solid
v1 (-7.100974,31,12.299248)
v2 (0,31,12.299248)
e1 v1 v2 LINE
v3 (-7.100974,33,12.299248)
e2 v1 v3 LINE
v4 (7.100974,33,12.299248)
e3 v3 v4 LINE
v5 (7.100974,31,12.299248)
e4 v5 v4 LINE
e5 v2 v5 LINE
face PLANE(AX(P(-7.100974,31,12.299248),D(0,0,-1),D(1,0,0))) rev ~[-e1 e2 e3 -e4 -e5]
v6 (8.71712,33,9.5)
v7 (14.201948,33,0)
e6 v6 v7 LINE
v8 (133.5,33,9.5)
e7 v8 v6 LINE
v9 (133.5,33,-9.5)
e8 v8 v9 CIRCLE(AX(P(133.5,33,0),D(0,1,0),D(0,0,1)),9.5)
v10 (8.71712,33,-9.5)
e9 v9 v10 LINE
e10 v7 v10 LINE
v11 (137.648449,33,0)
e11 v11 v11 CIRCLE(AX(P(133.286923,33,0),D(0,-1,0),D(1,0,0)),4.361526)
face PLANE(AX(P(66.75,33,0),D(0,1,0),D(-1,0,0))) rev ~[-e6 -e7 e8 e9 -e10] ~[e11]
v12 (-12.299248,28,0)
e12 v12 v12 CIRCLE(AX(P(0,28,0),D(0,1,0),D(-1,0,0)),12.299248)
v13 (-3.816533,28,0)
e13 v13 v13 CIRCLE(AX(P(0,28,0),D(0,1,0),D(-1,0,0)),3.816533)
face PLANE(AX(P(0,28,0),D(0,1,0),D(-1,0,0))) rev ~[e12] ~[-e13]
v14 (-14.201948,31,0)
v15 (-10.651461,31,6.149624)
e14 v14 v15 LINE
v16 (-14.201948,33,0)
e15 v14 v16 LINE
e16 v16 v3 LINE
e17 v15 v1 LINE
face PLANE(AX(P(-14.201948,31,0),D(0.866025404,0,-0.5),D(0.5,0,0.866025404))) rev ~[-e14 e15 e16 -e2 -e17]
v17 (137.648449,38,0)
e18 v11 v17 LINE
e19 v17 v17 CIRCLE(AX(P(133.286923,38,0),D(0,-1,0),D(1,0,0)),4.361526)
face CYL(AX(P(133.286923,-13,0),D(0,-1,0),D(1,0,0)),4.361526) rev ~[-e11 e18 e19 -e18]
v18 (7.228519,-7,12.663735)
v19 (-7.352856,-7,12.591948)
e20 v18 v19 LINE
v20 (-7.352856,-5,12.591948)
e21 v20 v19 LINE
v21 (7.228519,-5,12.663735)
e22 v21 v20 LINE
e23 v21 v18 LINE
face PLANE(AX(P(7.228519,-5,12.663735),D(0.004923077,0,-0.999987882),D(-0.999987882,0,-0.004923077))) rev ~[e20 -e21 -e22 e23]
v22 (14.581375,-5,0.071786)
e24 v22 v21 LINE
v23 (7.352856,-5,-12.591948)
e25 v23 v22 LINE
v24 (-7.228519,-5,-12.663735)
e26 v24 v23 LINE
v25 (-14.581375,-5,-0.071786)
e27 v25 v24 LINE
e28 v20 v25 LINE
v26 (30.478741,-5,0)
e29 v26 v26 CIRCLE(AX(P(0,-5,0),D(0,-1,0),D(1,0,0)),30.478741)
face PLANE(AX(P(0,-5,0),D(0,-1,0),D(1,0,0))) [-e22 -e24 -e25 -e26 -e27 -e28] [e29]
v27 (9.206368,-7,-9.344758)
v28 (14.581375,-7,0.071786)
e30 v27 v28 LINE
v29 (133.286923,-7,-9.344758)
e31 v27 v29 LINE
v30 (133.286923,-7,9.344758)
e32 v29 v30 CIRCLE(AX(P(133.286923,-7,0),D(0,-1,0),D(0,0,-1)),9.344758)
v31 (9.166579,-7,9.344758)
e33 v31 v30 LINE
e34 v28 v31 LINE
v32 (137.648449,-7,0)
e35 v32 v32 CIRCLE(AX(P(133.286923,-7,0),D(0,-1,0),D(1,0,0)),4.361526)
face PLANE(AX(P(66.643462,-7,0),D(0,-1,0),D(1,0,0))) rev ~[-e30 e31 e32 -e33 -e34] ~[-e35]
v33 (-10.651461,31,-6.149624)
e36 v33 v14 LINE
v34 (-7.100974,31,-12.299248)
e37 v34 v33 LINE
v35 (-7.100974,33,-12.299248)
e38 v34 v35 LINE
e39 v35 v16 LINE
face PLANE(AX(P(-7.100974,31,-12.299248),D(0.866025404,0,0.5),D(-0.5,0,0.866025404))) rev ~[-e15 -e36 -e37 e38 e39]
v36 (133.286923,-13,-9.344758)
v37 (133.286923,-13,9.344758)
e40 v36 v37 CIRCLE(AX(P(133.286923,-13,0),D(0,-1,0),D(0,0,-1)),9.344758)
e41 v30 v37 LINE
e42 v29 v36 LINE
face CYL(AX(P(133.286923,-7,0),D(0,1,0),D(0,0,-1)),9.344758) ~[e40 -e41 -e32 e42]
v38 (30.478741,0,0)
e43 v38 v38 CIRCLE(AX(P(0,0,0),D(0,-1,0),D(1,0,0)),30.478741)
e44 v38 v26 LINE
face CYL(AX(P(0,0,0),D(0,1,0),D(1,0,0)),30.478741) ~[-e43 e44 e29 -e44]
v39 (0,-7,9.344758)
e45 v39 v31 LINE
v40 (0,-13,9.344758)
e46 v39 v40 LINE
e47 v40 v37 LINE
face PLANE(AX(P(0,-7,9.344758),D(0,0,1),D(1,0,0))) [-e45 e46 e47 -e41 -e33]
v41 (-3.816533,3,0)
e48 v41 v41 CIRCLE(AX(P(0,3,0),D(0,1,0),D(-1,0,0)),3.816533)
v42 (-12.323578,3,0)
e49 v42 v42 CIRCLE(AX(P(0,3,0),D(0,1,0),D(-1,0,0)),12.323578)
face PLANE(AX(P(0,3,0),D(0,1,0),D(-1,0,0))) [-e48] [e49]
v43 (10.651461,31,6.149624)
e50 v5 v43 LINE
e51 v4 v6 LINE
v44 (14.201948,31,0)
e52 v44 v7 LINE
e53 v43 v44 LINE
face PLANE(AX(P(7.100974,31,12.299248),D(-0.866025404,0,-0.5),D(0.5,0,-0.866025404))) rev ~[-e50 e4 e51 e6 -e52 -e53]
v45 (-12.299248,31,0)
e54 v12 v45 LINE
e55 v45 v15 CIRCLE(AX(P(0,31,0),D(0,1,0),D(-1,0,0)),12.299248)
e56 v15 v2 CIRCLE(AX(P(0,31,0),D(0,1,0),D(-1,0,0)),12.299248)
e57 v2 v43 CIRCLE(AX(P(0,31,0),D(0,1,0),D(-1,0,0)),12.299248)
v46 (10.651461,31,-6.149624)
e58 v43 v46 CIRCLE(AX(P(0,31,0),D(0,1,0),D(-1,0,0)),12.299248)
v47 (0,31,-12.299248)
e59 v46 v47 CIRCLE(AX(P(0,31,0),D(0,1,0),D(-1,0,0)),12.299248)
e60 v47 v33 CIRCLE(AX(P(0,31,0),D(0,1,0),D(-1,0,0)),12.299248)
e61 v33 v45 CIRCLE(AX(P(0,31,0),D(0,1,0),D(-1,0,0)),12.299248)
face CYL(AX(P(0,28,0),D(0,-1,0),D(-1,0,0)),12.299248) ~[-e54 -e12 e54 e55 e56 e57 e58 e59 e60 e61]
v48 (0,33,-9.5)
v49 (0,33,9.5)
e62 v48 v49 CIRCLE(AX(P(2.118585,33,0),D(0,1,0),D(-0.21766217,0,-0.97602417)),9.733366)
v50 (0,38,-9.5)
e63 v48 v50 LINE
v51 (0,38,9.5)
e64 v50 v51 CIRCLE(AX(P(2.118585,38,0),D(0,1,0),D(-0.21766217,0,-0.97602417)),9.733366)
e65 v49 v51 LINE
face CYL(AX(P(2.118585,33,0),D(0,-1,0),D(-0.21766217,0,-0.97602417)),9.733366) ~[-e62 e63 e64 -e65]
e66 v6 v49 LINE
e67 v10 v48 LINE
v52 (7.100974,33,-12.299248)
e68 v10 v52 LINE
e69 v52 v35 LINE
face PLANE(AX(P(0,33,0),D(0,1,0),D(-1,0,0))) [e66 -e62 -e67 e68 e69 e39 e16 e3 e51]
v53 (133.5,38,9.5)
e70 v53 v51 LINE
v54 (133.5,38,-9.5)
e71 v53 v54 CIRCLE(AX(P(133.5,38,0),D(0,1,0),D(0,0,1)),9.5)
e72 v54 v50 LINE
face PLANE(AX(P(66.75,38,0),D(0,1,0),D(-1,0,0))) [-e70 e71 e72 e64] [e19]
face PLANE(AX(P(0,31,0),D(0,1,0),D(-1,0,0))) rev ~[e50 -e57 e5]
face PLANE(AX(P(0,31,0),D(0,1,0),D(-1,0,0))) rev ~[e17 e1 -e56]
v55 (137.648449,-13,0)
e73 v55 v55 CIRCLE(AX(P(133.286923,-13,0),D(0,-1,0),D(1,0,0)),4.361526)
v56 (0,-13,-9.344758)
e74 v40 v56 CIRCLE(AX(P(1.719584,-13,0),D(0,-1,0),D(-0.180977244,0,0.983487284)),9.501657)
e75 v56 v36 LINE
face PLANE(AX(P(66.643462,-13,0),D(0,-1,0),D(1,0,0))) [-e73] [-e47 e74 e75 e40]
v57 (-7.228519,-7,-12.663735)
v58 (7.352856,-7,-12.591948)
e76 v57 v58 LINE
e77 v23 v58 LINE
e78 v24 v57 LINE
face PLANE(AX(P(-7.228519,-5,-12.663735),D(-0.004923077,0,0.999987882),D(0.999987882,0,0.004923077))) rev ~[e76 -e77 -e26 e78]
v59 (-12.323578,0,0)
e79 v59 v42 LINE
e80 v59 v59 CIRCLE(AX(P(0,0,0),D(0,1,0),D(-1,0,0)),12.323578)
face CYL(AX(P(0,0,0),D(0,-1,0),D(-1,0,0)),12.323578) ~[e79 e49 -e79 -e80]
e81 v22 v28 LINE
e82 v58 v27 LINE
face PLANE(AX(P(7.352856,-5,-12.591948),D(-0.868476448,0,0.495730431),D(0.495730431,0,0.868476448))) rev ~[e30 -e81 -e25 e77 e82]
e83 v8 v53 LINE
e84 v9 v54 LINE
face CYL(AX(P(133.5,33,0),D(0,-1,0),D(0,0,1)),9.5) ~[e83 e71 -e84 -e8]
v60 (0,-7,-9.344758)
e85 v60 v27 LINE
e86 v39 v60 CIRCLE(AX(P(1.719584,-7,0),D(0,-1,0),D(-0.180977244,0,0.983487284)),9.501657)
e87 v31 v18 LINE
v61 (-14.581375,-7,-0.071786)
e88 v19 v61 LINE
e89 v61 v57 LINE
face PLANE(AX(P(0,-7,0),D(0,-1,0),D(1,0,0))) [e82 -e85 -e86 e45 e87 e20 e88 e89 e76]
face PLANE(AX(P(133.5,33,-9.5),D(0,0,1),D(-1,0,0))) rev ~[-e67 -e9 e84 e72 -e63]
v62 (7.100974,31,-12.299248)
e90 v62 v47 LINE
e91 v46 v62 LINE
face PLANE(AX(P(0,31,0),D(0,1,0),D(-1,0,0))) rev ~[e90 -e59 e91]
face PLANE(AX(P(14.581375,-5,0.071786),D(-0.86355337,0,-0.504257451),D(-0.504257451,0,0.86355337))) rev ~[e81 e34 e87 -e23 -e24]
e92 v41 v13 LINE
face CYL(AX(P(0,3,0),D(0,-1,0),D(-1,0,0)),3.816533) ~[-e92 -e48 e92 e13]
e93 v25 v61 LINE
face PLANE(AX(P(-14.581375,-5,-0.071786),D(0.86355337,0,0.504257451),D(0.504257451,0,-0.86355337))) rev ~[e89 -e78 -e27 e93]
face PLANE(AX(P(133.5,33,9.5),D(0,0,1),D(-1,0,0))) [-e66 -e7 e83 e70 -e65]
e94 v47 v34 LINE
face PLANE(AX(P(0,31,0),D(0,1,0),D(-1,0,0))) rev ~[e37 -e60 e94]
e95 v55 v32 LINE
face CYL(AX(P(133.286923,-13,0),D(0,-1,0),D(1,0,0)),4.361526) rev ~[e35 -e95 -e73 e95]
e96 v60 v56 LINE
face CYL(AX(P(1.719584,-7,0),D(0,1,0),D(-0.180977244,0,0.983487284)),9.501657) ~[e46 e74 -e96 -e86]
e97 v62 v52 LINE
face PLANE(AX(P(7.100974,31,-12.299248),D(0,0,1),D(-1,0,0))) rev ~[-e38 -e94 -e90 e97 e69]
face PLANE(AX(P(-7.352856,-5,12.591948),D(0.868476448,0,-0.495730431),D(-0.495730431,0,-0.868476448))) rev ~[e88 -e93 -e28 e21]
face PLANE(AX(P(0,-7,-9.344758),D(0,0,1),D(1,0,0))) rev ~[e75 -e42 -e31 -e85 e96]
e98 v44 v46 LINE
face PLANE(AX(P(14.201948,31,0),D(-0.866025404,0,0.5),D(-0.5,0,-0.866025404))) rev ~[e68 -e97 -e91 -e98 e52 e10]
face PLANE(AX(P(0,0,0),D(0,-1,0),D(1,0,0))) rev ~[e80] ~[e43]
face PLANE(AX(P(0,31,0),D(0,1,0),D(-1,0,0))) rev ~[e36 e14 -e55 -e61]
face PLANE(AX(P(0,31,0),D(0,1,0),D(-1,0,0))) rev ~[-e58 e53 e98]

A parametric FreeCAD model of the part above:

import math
import FreeCAD as App
import Part
import Sketcher

V = App.Vector
Q = App.Units.Quantity

doc = App.newDocument("Part")
body = doc.addObject("PartDesign::Body", "Body")

# Sketch on XZ plane
sketch1 = body.newObject("Sketcher::SketchObject", "Sketch")
sketch1.AttachmentSupport = (doc.getObject("XZ_Plane"), [""])
sketch1.MapMode = "FlatFace"
sketch1.addGeometry(Part.Circle(V(0, 0, 0), V(0, 0, 1), 30), False)
sketch1.addConstraint(Sketcher.Constraint("Coincident", 0, 3, -1, 1))
sketch1.addConstraint(Sketcher.Constraint("Diameter", 0, Q("60.957481 mm")))
pad1 = body.newObject("PartDesign::Pad", "Pad")
pad1.Profile = sketch1
pad1.Length = 5

# Sketch on XZ plane
sketch2 = body.newObject("Sketcher::SketchObject", "Sketch001")
sketch2.AttachmentSupport = (doc.getObject("XZ_Plane"), [""])
sketch2.MapMode = "FlatFace"
sketch2.addGeometry(Part.Circle(V(0, 0, 0), V(0, 0, 1), 12), False)
sketch2.addConstraint(Sketcher.Constraint("Coincident", 0, 3, -1, 1))
sketch2.addConstraint(Sketcher.Constraint("Diameter", 0, Q("24.647155 mm")))
pad2 = body.newObject("PartDesign::Pad", "Pad001")
pad2.Profile = sketch2
pad2.Length = 3
pad2.Reversed = True

# Sketch on XZ plane
sketch3 = body.newObject("Sketcher::SketchObject", "Sketch002")
sketch3.AttachmentSupport = (doc.getObject("XZ_Plane"), [""])
sketch3.MapMode = "FlatFace"
sketch3.AttachmentOffset = App.Placement(V(0, 0, -3), App.Rotation())
sketch3.addGeometry(Part.Circle(V(0, 0, 0), V(0, 0, 1), 3.8), False)
sketch3.addConstraint(Sketcher.Constraint("Coincident", 0, 3, -1, 1))
sketch3.addConstraint(Sketcher.Constraint("Diameter", 0, Q("7.633065 mm")))
pad3 = body.newObject("PartDesign::Pad", "Pad002")
pad3.Profile = sketch3
pad3.Length = 25
pad3.Reversed = True

# Sketch on XZ plane
sketch4 = body.newObject("Sketcher::SketchObject", "Sketch003")
sketch4.AttachmentSupport = (doc.getObject("XZ_Plane"), [""])
sketch4.MapMode = "FlatFace"
sketch4.AttachmentOffset = App.Placement(V(0, 0, -28), App.Rotation())
sketch4.addGeometry(Part.Circle(V(0, 0, 0), V(0, 0, 1), 12), False)
sketch4.addConstraint(Sketcher.Constraint("Coincident", 0, 3, -1, 1))
sketch4.addConstraint(Sketcher.Constraint("Diameter", 0, Q("24.598495 mm")))
pad4 = body.newObject("PartDesign::Pad", "Pad003")
pad4.Profile = sketch4
pad4.Length = 3
pad4.Reversed = True

# Sketch on XZ plane
sketch5 = body.newObject("Sketcher::SketchObject", "Sketch004")
sketch5.AttachmentSupport = (doc.getObject("XZ_Plane"), [""])
sketch5.MapMode = "FlatFace"
sketch5.AttachmentOffset = App.Placement(V(0, 0, 5), App.Rotation())
sketch5.addGeometry(Part.LineSegment(V(-7, 13, 0), V(-15, 0, 0)), False)
sketch5.addGeometry(Part.LineSegment(V(-15, 0, 0), V(-7, -13, 0)), False)
sketch5.addGeometry(Part.LineSegment(V(-7, -13, 0), V(7, -13, 0)), False)
sketch5.addGeometry(Part.LineSegment(V(7, -13, 0), V(15, 0, 0)), False)
sketch5.addGeometry(Part.LineSegment(V(15, 0, 0), V(7, 13, 0)), False)
sketch5.addGeometry(Part.LineSegment(V(7, 13, 0), V(-7, 13, 0)), False)
sketch5.addConstraint(Sketcher.Constraint("Coincident", 0, 2, 1, 1))
sketch5.addConstraint(Sketcher.Constraint("Coincident", 1, 2, 2, 1))
sketch5.addConstraint(Sketcher.Constraint("Coincident", 2, 2, 3, 1))
sketch5.addConstraint(Sketcher.Constraint("Coincident", 3, 2, 4, 1))
sketch5.addConstraint(Sketcher.Constraint("Coincident", 4, 2, 5, 1))
sketch5.addConstraint(Sketcher.Constraint("Coincident", 5, 2, 0, 1))
sketch5.addConstraint(Sketcher.Constraint("Symmetric", 0, 2, 3, 2, -1, 1))
sketch5.addConstraint(Sketcher.Constraint("Symmetric", 1, 2, 4, 2, -1, 1))
sketch5.addConstraint(Sketcher.Constraint("Symmetric", 2, 2, 5, 2, -1, 1))
sketch5.addConstraint(Sketcher.Constraint("Equal", 0, 1))
sketch5.addConstraint(Sketcher.Constraint("Equal", 1, 2))
sketch5.addConstraint(Sketcher.Constraint("DistanceX", 1, 2, -1, 1, Q("7.228519 mm")))
sketch5.addConstraint(Sketcher.Constraint("DistanceY", 2, 2, -1, 1, Q("12.591948 mm")))
sketch5.addConstraint(Sketcher.Constraint("DistanceY", 1, 2, 0, 2, Q("12.591948 mm")))
sketch5.addConstraint(Sketcher.Constraint("DistanceX", 0, 2, 2, 2, Q("21.934232 mm")))
pad5 = body.newObject("PartDesign::Pad", "Pad004")
pad5.Profile = sketch5
pad5.Length = 2

# Sketch on XZ plane
sketch6 = body.newObject("Sketcher::SketchObject", "Sketch005")
sketch6.AttachmentSupport = (doc.getObject("XZ_Plane"), [""])
sketch6.MapMode = "FlatFace"
sketch6.AttachmentOffset = App.Placement(V(0, 0, 7), App.Rotation())
sketch6.addGeometry(Part.LineSegment(V(0, -9, 0), V(133, -9, 0)), False)
sketch6.addGeometry(Part.ArcOfCircle(Part.Circle(V(133, 0, 0), V(0, 0, 1), 9), math.radians(-90), math.radians(90)), False)
sketch6.addGeometry(Part.LineSegment(V(133, 9, 0), V(0, 9, 0)), False)
sketch6.addGeometry(Part.ArcOfCircle(Part.Circle(V(2, 0, 0), V(0, 0, 1), 10), math.radians(100), math.radians(260)), False)
sketch6.addConstraint(Sketcher.Constraint("Tangent", 0, 2, 1, 1))
sketch6.addConstraint(Sketcher.Constraint("Tangent", 1, 2, 2, 1))
sketch6.addConstraint(Sketcher.Constraint("Coincident", 2, 2, 3, 1))
sketch6.addConstraint(Sketcher.Constraint("Coincident", 3, 2, 0, 1))
sketch6.addConstraint(Sketcher.Constraint("Horizontal", 0))
sketch6.addConstraint(Sketcher.Constraint("Horizontal", 2))
sketch6.addConstraint(Sketcher.Constraint("Symmetric", 2, 2, 3, 2, -1, 1))
sketch6.addConstraint(Sketcher.Constraint("PointOnObject", 3, 3, -1))
sketch6.addConstraint(Sketcher.Constraint("Radius", 1, Q("9.344758 mm")))
sketch6.addConstraint(Sketcher.Constraint("Radius", 3, Q("9.501657 mm")))
sketch6.addConstraint(Sketcher.Constraint("DistanceX", 0, 1, 0, 2, Q("133.286923 mm")))
pad6 = body.newObject("PartDesign::Pad", "Pad005")
pad6.Profile = sketch6
pad6.Length = 6

# Sketch on XZ plane
sketch7 = body.newObject("Sketcher::SketchObject", "Sketch006")
sketch7.AttachmentSupport = (doc.getObject("XZ_Plane"), [""])
sketch7.MapMode = "FlatFace"
sketch7.AttachmentOffset = App.Placement(V(0, 0, -31), App.Rotation())
sketch7.addGeometry(Part.LineSegment(V(-7, 12, 0), V(7, 12, 0)), False)
sketch7.addGeometry(Part.LineSegment(V(7, 12, 0), V(14, 0, 0)), False)
sketch7.addGeometry(Part.LineSegment(V(14, 0, 0), V(7, -12, 0)), False)
sketch7.addGeometry(Part.LineSegment(V(7, -12, 0), V(-7, -12, 0)), False)
sketch7.addGeometry(Part.LineSegment(V(-7, -12, 0), V(-14, 0, 0)), False)
sketch7.addGeometry(Part.LineSegment(V(-14, 0, 0), V(-7, 12, 0)), False)
sketch7.addConstraint(Sketcher.Constraint("Coincident", 0, 2, 1, 1))
sketch7.addConstraint(Sketcher.Constraint("Coincident", 1, 2, 2, 1))
sketch7.addConstraint(Sketcher.Constraint("Coincident", 2, 2, 3, 1))
sketch7.addConstraint(Sketcher.Constraint("Coincident", 3, 2, 4, 1))
sketch7.addConstraint(Sketcher.Constraint("Coincident", 4, 2, 5, 1))
sketch7.addConstraint(Sketcher.Constraint("Coincident", 5, 2, 0, 1))
sketch7.addConstraint(Sketcher.Constraint("Horizontal", 0))
sketch7.addConstraint(Sketcher.Constraint("Horizontal", 3))
sketch7.addConstraint(Sketcher.Constraint("Symmetric", 0, 2, 3, 2, -1, 1))
sketch7.addConstraint(Sketcher.Constraint("Symmetric", 1, 2, 4, 2, -1, 1))
sketch7.addConstraint(Sketcher.Constraint("PointOnObject", 1, 2, -1))
sketch7.addConstraint(Sketcher.Constraint("Parallel", 2, 5))
sketch7.addConstraint(Sketcher.Constraint("Vertical", 0, 2, 2, 2))
sketch7.addConstraint(Sketcher.Constraint("Angle", 1, Q("-60 deg")))
sketch7.addConstraint(Sketcher.Constraint("DistanceX", 0, 1, 0, 2, Q("14.201948 mm")))
sketch7.addConstraint(Sketcher.Constraint("DistanceX", 3, 2, 1, 2, Q("21.302922 mm")))
pad7 = body.newObject("PartDesign::Pad", "Pad006")
pad7.Profile = sketch7
pad7.Length = 2
pad7.Reversed = True

# Sketch on XZ plane
sketch8 = body.newObject("Sketcher::SketchObject", "Sketch007")
sketch8.AttachmentSupport = (doc.getObject("XZ_Plane"), [""])
sketch8.MapMode = "FlatFace"
sketch8.AttachmentOffset = App.Placement(V(0, 0, -33), App.Rotation())
sketch8.addGeometry(Part.LineSegment(V(134, -10, 0), V(0, -10, 0)), False)
sketch8.addGeometry(Part.ArcOfCircle(Part.Circle(V(2, 0, 0), V(0, 0, 1), 10), math.radians(103), math.radians(257)), False)
sketch8.addGeometry(Part.LineSegment(V(0, 10, 0), V(134, 10, 0)), False)
sketch8.addGeometry(Part.ArcOfCircle(Part.Circle(V(134, 0, 0), V(0, 0, 1), 10), math.radians(-90), math.radians(90)), False)
sketch8.addConstraint(Sketcher.Constraint("Coincident", 0, 2, 1, 2))
sketch8.addConstraint(Sketcher.Constraint("Coincident", 1, 1, 2, 1))
sketch8.addConstraint(Sketcher.Constraint("Tangent", 2, 2, 3, 2))
sketch8.addConstraint(Sketcher.Constraint("Tangent", 3, 1, 0, 1))
sketch8.addConstraint(Sketcher.Constraint("Horizontal", 0))
sketch8.addConstraint(Sketcher.Constraint("Horizontal", 2))
sketch8.addConstraint(Sketcher.Constraint("Symmetric", 0, 2, 1, 1, -1, 1))
sketch8.addConstraint(Sketcher.Constraint("PointOnObject", 1, 3, -1))
sketch8.addConstraint(Sketcher.Constraint("Radius", 3, Q("9.5 mm")))
sketch8.addConstraint(Sketcher.Constraint("DistanceX", 0, 2, 0, 1, Q("133.5 mm")))
sketch8.addConstraint(Sketcher.Constraint("Radius", 1, Q("9.733366 mm")))
pad8 = body.newObject("PartDesign::Pad", "Pad007")
pad8.Profile = sketch8
pad8.Length = 5
pad8.Reversed = True

# Sketch on XZ plane
sketch9 = body.newObject("Sketcher::SketchObject", "Sketch008")
sketch9.AttachmentSupport = (doc.getObject("XZ_Plane"), [""])
sketch9.MapMode = "FlatFace"
sketch9.AttachmentOffset = App.Placement(V(0, 0, 13), App.Rotation())
sketch9.addGeometry(Part.Circle(V(133.3, 0, 0), V(0, 0, 1), 4.4), False)
sketch9.addConstraint(Sketcher.Constraint("PointOnObject", 0, 3, -1))
sketch9.addConstraint(Sketcher.Constraint("Diameter", 0, Q("8.723052 mm")))
sketch9.addConstraint(Sketcher.Constraint("DistanceX", -1, 1, 0, 3, Q("133.286923 mm")))
pocket1 = body.newObject("PartDesign::Pocket", "Pocket")
pocket1.Profile = sketch9
pocket1.Length = 55

doc.recompute()
